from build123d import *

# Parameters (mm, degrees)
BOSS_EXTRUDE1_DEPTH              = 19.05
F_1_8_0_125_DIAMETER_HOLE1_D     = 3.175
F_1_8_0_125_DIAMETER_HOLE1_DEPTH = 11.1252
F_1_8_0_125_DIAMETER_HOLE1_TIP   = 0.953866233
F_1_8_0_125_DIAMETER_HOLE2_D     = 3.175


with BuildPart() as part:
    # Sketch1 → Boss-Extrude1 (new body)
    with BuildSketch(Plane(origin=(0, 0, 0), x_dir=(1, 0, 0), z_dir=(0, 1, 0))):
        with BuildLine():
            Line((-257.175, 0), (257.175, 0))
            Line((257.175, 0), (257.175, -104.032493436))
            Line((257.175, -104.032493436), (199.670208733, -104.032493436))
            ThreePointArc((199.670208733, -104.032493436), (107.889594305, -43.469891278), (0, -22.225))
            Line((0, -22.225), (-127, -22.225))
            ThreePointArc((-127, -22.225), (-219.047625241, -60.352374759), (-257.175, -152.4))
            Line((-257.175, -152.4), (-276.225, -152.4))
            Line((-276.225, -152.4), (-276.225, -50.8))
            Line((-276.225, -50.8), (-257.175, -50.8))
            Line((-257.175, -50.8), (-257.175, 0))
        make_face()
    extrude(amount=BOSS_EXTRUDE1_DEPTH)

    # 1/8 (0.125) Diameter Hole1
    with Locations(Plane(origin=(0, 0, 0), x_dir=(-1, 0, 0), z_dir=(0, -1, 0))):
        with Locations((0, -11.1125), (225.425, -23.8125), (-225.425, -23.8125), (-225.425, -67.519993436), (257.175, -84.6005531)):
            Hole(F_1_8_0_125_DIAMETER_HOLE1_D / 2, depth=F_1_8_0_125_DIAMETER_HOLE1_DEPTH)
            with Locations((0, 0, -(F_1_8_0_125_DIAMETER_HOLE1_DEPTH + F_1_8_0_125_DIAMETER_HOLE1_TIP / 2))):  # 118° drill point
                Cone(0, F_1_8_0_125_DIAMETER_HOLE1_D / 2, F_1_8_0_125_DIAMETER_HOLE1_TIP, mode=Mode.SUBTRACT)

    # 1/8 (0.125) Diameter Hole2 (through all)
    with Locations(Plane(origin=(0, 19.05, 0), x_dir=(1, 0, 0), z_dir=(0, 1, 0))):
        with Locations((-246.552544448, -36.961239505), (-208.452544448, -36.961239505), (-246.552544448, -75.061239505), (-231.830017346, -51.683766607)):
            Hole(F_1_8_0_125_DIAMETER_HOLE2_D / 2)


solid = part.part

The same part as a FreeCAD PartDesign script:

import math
import FreeCAD as App
import Part
import Sketcher
from FreeCAD import Vector
Q = App.Units.Quantity

doc = App.newDocument("Part")
params = doc.addObject("Spreadsheet::Sheet", "Params")
for row, (alias, value) in enumerate([
    ("sketch1_width", "5 in"),
    ("sketch1_height", "2 in"),
    ("sketch1_height2", "4 in"),
    ("sketch1_radius", "5.125 in"),
    ("sketch1_width2", "0.75 in"),
    ("pad1_length", "0.75 in"),
    ("sketch2_diameter", "0.125 in"),
    ("hole_diameter", "0.125 in"),
    ("hole_depth", "0.438 in"),
    ("sketch3_diameter", "0.125 in"),
    ("hole2_diameter", "0.125 in"),
], start=1):
    params.set(f"A{row}", alias)
    params.set(f"B{row}", "=" + value)
    params.setAlias(f"B{row}", alias)

body = doc.addObject("PartDesign::Body", "Body")

sketch1 = doc.addObject("Sketcher::SketchObject", "Sketch")
body.addObject(sketch1)
sketch1.AttachmentSupport = (doc.XZ_Plane, [""])
sketch1.MapMode = "FlatFace"
sketch1.addGeometry(Part.LineSegment(Vector(257.175, 0, 0), Vector(-257.175, 0, 0)), False)
sketch1.addGeometry(Part.LineSegment(Vector(-257.175, 0, 0), Vector(-257.175, 50.8, 0)), False)
sketch1.addGeometry(Part.LineSegment(Vector(-257.175, 50.8, 0), Vector(-276.225, 50.8, 0)), False)
sketch1.addGeometry(Part.LineSegment(Vector(-276.225, 50.8, 0), Vector(-276.225, 152.4, 0)), False)
sketch1.addGeometry(Part.LineSegment(Vector(-276.225, 152.4, 0), Vector(-257.175, 152.4, 0)), False)
sketch1.addGeometry(Part.ArcOfCircle(Part.Circle(Vector(-127, 152.4, 0), Vector(0, 0, 1), 130.175), math.radians(180), math.radians(270)), False)
sketch1.addGeometry(Part.LineSegment(Vector(-127, 22.225, 0), Vector(0, 22.225, 0)), False)
sketch1.addGeometry(Part.ArcOfCircle(Part.Circle(Vector(0, 306.799532, 0), Vector(0, 0, 1), 284.574532), math.radians(-90), math.radians(-45.440893)), False)
sketch1.addGeometry(Part.LineSegment(Vector(199.670209, 104.032493, 0), Vector(257.175, 104.032493, 0)), False)
sketch1.addGeometry(Part.LineSegment(Vector(257.175, 104.032493, 0), Vector(257.175, 0, 0)), False)
sketch1.addConstraint(Sketcher.Constraint("Coincident", 0, 2, 1, 1))
sketch1.addConstraint(Sketcher.Constraint("Coincident", 1, 2, 2, 1))
sketch1.addConstraint(Sketcher.Constraint("Coincident", 2, 2, 3, 1))
sketch1.addConstraint(Sketcher.Constraint("Coincident", 3, 2, 4, 1))
sketch1.addConstraint(Sketcher.Constraint("Coincident", 4, 2, 5, 1))
sketch1.addConstraint(Sketcher.Constraint("Tangent", 5, 2, 6, 1))
sketch1.addConstraint(Sketcher.Constraint("Tangent", 6, 2, 7, 1))
sketch1.addConstraint(Sketcher.Constraint("Coincident", 7, 2, 8, 1))
sketch1.addConstraint(Sketcher.Constraint("Coincident", 8, 2, 9, 1))
sketch1.addConstraint(Sketcher.Constraint("Coincident", 9, 2, 0, 1))
sketch1.addConstraint(Sketcher.Constraint("Horizontal", 0))
sketch1.addConstraint(Sketcher.Constraint("Vertical", 1))
sketch1.addConstraint(Sketcher.Constraint("Horizontal", 2))
sketch1.addConstraint(Sketcher.Constraint("Vertical", 3))
sketch1.addConstraint(Sketcher.Constraint("Horizontal", 4))
sketch1.addConstraint(Sketcher.Constraint("Horizontal", 6))
sketch1.addConstraint(Sketcher.Constraint("Horizontal", 8))
sketch1.addConstraint(Sketcher.Constraint("Vertical", 9))
sketch1.addConstraint(Sketcher.Constraint("Symmetric", 0, 2, 9, 2, -1, 1))
sketch1.addConstraint(Sketcher.Constraint("PointOnObject", 7, 3, -2))
sketch1.addConstraint(Sketcher.Constraint("Horizontal", 5, 3, 3, 2))
sketch1.addConstraint(Sketcher.Constraint("Vertical", 1, 2, 4, 2))
sketch1.addConstraint(Sketcher.Constraint("DistanceX", 6, 1, 6, 2, Q("5 in")))
sketch1.addConstraint(Sketcher.Constraint("DistanceY", 1, 1, 1, 2, Q("2 in")))
sketch1.addConstraint(Sketcher.Constraint("DistanceY", 3, 1, 3, 2, Q("4 in")))
sketch1.addConstraint(Sketcher.Constraint("Radius", 5, Q("5.125 in")))
sketch1.addConstraint(Sketcher.Constraint("DistanceX", 2, 2, 2, 1, Q("0.75 in")))
sketch1.addConstraint(Sketcher.Constraint("Radius", 7, 284.574532))
sketch1.addConstraint(Sketcher.Constraint("DistanceX", 8, 1, 8, 2, 57.504791))
sketch1.setExpression("Constraints[22]", "Params.sketch1_width")
sketch1.setExpression("Constraints[23]", "Params.sketch1_height")
sketch1.setExpression("Constraints[24]", "Params.sketch1_height2")
sketch1.setExpression("Constraints[25]", "Params.sketch1_radius")
sketch1.setExpression("Constraints[26]", "Params.sketch1_width2")
pad1 = doc.addObject("PartDesign::Pad", "Pad")
body.addObject(pad1)
pad1.Profile = sketch1
pad1.setExpression("Length", "Params.pad1_length")
pad1.Reversed = True

sketch2 = doc.addObject("Sketcher::SketchObject", "Sketch001")
body.addObject(sketch2)
sketch2.AttachmentSupport = (doc.XZ_Plane, [""])
sketch2.MapMode = "FlatFace"
sketch2.addGeometry(Part.Circle(Vector(0, 11.1125, 0), Vector(0, 0, 1), 1.5875), False)
sketch2.addGeometry(Part.Circle(Vector(-225.425, 23.8125, 0), Vector(0, 0, 1), 1.5875), False)
sketch2.addGeometry(Part.Circle(Vector(225.425, 23.8125, 0), Vector(0, 0, 1), 1.5875), False)
sketch2.addGeometry(Part.Circle(Vector(225.425, 67.519993, 0), Vector(0, 0, 1), 1.5875), False)
sketch2.addGeometry(Part.Circle(Vector(-257.175, 84.600553, 0), Vector(0, 0, 1), 1.5875), False)
sketch2.addConstraint(Sketcher.Constraint("Equal", 0, 1))
sketch2.addConstraint(Sketcher.Constraint("Equal", 1, 2))
sketch2.addConstraint(Sketcher.Constraint("Equal", 2, 3))
sketch2.addConstraint(Sketcher.Constraint("Equal", 3, 4))
sketch2.addConstraint(Sketcher.Constraint("Symmetric", 1, 3, 2, 3, -2))
sketch2.addConstraint(Sketcher.Constraint("PointOnObject", 0, 3, -2))
sketch2.addConstraint(Sketcher.Constraint("Vertical", 2, 3, 3, 3))
sketch2.addConstraint(Sketcher.Constraint("Diameter", 0, Q("0.125 in")))
sketch2.addConstraint(Sketcher.Constraint("DistanceX", 4, 3, 3, 3, Q("19 in")))
sketch2.addConstraint(Sketcher.Constraint("DistanceY", 0, 3, 1, 3, Q("0.5 in")))
sketch2.addConstraint(Sketcher.Constraint("DistanceX", 1, 3, 2, 3, Q("17.75 in")))
sketch2.addConstraint(Sketcher.Constraint("DistanceY", -1, 1, 0, 3, Q("0.4375 in")))
sketch2.addConstraint(Sketcher.Constraint("DistanceY", 3, 3, 4, 3, 17.08056))
sketch2.addConstraint(Sketcher.Constraint("DistanceY", -1, 1, 3, 3, 67.519993))
sketch2.setExpression("Constraints[7]", "Params.sketch2_diameter")
doc.recompute()
hole = doc.addObject("PartDesign::Hole", "Hole")
body.addObject(hole)
hole.Profile = sketch2
hole.ThreadType = "None"
hole.setExpression("Diameter", "Params.hole_diameter")
hole.DepthType = "Dimension"
hole.setExpression("Depth", "Params.hole_depth")
hole.DrillPoint = "Angled"
hole.DrillPointAngle = 118

sketch3 = doc.addObject("Sketcher::SketchObject", "Sketch002")
body.addObject(sketch3)
sketch3.AttachmentSupport = (doc.XZ_Plane, [""])
sketch3.MapMode = "FlatFace"
sketch3.AttachmentOffset = App.Placement(Vector(0, 0, -0.75 * 25.4), App.Rotation())
sketch3.addGeometry(Part.Circle(Vector(-246.552544, 36.96124, 0), Vector(0, 0, 1), 1.5875), False)
sketch3.addGeometry(Part.Circle(Vector(-208.452544, 36.96124, 0), Vector(0, 0, 1), 1.5875), False)
sketch3.addGeometry(Part.Circle(Vector(-246.552544, 75.06124, 0), Vector(0, 0, 1), 1.5875), False)
sketch3.addGeometry(Part.Circle(Vector(-231.830017, 51.683767, 0), Vector(0, 0, 1), 1.5875), False)
sketch3.addConstraint(Sketcher.Constraint("Equal", 0, 1))
sketch3.addConstraint(Sketcher.Constraint("Equal", 1, 2))
sketch3.addConstraint(Sketcher.Constraint("Equal", 2, 3))
sketch3.addConstraint(Sketcher.Constraint("Horizontal", 0, 3, 1, 3))
sketch3.addConstraint(Sketcher.Constraint("Vertical", 0, 3, 2, 3))
sketch3.addConstraint(Sketcher.Constraint("Diameter", 0, Q("0.125 in")))
sketch3.addConstraint(Sketcher.Constraint("DistanceX", 0, 3, 1, 3, Q("1.5 in")))
sketch3.addConstraint(Sketcher.Constraint("DistanceY", 0, 3, 2, 3, Q("1.5 in")))
sketch3.addConstraint(Sketcher.Constraint("DistanceY", -1, 1, 0, 3, 36.96124))
sketch3.addConstraint(Sketcher.Constraint("DistanceX", 0, 3, -1, 1, 246.552544))
sketch3.addConstraint(Sketcher.Constraint("DistanceX", 3, 3, -1, 1, 231.830017))
sketch3.addConstraint(Sketcher.Constraint("DistanceY", -1, 1, 3, 3, 51.683767))
sketch3.setExpression("Constraints[5]", "Params.sketch3_diameter")
doc.recompute()
hole2 = doc.addObject("PartDesign::Hole", "Hole001")
body.addObject(hole2)
hole2.Profile = sketch3
hole2.ThreadType = "None"
hole2.setExpression("Diameter", "Params.hole2_diameter")
hole2.DepthType = "ThroughAll"
hole2.Reversed = True

doc.recompute()
